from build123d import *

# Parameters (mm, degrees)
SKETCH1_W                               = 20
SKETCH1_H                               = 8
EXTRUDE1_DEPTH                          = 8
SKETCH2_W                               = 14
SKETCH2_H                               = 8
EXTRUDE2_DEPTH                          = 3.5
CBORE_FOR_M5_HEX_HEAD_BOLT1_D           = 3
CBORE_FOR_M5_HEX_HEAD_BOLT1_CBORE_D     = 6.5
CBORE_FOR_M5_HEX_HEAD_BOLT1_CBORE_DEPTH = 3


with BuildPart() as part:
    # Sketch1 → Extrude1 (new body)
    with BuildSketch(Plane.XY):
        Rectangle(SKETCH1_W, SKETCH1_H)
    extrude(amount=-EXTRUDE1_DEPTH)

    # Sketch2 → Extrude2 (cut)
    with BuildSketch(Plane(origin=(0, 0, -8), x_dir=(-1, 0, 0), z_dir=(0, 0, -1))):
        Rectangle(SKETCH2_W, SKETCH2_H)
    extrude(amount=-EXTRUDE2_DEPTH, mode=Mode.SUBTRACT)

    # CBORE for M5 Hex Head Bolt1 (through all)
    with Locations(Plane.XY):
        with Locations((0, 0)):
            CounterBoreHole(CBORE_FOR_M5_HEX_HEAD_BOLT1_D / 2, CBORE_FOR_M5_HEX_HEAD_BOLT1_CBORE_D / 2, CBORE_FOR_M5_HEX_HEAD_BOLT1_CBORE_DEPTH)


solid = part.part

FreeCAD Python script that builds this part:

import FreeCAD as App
import Part
import Sketcher

V = App.Vector

doc = App.newDocument("Part")
body = doc.addObject("PartDesign::Body", "Body")

# Sketch on XY plane
sketch1 = body.newObject("Sketcher::SketchObject", "Sketch")
sketch1.AttachmentSupport = (doc.getObject("XY_Plane"), [""])
sketch1.MapMode = "FlatFace"
sketch1.addGeometry([
    Part.LineSegment(V(-10, 4, 0), V(-10, -4, 0)),
    Part.LineSegment(V(-10, -4, 0), V(10, -4, 0)),
    Part.LineSegment(V(10, -4, 0), V(10, 4, 0)),
    Part.LineSegment(V(10, 4, 0), V(-10, 4, 0)),
], False)
sketch1.addConstraint([
    Sketcher.Constraint("Coincident", 0, 2, 1, 1),
    Sketcher.Constraint("Coincident", 1, 2, 2, 1),
    Sketcher.Constraint("Coincident", 2, 2, 3, 1),
    Sketcher.Constraint("Coincident", 3, 2, 0, 1),
    Sketcher.Constraint("Vertical", 0),
    Sketcher.Constraint("Horizontal", 1),
    Sketcher.Constraint("Vertical", 2),
    Sketcher.Constraint("Horizontal", 3),
    Sketcher.Constraint("Symmetric", 0, 2, 2, 2, -1, 1),
    Sketcher.Constraint("DistanceX", 1, 1, 1, 2, 20.0),
    Sketcher.Constraint("DistanceY", 0, 2, 0, 1, 8.0),
])
pad1 = body.newObject("PartDesign::Pad", "Pad")
pad1.Profile = sketch1
pad1.Length = 8
pad1.Reversed = True

# Sketch on XY plane
sketch2 = body.newObject("Sketcher::SketchObject", "Sketch001")
sketch2.AttachmentSupport = (doc.getObject("XY_Plane"), [""])
sketch2.MapMode = "FlatFace"
sketch2.AttachmentOffset = App.Placement(V(0, 0, -8), App.Rotation())
sketch2.addGeometry([
    Part.LineSegment(V(7, 4, 0), V(7, -4, 0)),
    Part.LineSegment(V(7, -4, 0), V(-7, -4, 0)),
    Part.LineSegment(V(-7, -4, 0), V(-7, 4, 0)),
    Part.LineSegment(V(-7, 4, 0), V(7, 4, 0)),
], False)
sketch2.addConstraint([
    Sketcher.Constraint("Coincident", 0, 2, 1, 1),
    Sketcher.Constraint("Coincident", 1, 2, 2, 1),
    Sketcher.Constraint("Coincident", 2, 2, 3, 1),
    Sketcher.Constraint("Coincident", 3, 2, 0, 1),
    Sketcher.Constraint("Vertical", 0),
    Sketcher.Constraint("Horizontal", 1),
    Sketcher.Constraint("Vertical", 2),
    Sketcher.Constraint("Horizontal", 3),
    Sketcher.Constraint("Symmetric", 0, 2, 2, 2, -1, 1),
    Sketcher.Constraint("DistanceX", 1, 2, 1, 1, 14.0),
    Sketcher.Constraint("DistanceY", 0, 2, 0, 1, 8.0),
])
pocket1 = body.newObject("PartDesign::Pocket", "Pocket")
pocket1.Profile = sketch2
pocket1.Length = 3.5
pocket1.Reversed = True

# Sketch on XY plane
sketch3 = body.newObject("Sketcher::SketchObject", "Sketch002")
sketch3.AttachmentSupport = (doc.getObject("XY_Plane"), [""])
sketch3.MapMode = "FlatFace"
sketch3.addGeometry(Part.Circle(V(0, 0, 0), V(0, 0, 1), 1.5), False)
sketch3.addConstraint([
    Sketcher.Constraint("Coincident", 0, 3, -1, 1),
    Sketcher.Constraint("Diameter", 0, 3.0),
])
doc.recompute()
hole = body.newObject("PartDesign::Hole", "Hole")
hole.Profile = sketch3
hole.ThreadType = "None"
hole.Diameter = 3
hole.DepthType = "ThroughAll"
hole.HoleCutType = "Counterbore"
hole.HoleCutDiameter = 6.5
hole.HoleCutDepth = 3

doc.recompute()
